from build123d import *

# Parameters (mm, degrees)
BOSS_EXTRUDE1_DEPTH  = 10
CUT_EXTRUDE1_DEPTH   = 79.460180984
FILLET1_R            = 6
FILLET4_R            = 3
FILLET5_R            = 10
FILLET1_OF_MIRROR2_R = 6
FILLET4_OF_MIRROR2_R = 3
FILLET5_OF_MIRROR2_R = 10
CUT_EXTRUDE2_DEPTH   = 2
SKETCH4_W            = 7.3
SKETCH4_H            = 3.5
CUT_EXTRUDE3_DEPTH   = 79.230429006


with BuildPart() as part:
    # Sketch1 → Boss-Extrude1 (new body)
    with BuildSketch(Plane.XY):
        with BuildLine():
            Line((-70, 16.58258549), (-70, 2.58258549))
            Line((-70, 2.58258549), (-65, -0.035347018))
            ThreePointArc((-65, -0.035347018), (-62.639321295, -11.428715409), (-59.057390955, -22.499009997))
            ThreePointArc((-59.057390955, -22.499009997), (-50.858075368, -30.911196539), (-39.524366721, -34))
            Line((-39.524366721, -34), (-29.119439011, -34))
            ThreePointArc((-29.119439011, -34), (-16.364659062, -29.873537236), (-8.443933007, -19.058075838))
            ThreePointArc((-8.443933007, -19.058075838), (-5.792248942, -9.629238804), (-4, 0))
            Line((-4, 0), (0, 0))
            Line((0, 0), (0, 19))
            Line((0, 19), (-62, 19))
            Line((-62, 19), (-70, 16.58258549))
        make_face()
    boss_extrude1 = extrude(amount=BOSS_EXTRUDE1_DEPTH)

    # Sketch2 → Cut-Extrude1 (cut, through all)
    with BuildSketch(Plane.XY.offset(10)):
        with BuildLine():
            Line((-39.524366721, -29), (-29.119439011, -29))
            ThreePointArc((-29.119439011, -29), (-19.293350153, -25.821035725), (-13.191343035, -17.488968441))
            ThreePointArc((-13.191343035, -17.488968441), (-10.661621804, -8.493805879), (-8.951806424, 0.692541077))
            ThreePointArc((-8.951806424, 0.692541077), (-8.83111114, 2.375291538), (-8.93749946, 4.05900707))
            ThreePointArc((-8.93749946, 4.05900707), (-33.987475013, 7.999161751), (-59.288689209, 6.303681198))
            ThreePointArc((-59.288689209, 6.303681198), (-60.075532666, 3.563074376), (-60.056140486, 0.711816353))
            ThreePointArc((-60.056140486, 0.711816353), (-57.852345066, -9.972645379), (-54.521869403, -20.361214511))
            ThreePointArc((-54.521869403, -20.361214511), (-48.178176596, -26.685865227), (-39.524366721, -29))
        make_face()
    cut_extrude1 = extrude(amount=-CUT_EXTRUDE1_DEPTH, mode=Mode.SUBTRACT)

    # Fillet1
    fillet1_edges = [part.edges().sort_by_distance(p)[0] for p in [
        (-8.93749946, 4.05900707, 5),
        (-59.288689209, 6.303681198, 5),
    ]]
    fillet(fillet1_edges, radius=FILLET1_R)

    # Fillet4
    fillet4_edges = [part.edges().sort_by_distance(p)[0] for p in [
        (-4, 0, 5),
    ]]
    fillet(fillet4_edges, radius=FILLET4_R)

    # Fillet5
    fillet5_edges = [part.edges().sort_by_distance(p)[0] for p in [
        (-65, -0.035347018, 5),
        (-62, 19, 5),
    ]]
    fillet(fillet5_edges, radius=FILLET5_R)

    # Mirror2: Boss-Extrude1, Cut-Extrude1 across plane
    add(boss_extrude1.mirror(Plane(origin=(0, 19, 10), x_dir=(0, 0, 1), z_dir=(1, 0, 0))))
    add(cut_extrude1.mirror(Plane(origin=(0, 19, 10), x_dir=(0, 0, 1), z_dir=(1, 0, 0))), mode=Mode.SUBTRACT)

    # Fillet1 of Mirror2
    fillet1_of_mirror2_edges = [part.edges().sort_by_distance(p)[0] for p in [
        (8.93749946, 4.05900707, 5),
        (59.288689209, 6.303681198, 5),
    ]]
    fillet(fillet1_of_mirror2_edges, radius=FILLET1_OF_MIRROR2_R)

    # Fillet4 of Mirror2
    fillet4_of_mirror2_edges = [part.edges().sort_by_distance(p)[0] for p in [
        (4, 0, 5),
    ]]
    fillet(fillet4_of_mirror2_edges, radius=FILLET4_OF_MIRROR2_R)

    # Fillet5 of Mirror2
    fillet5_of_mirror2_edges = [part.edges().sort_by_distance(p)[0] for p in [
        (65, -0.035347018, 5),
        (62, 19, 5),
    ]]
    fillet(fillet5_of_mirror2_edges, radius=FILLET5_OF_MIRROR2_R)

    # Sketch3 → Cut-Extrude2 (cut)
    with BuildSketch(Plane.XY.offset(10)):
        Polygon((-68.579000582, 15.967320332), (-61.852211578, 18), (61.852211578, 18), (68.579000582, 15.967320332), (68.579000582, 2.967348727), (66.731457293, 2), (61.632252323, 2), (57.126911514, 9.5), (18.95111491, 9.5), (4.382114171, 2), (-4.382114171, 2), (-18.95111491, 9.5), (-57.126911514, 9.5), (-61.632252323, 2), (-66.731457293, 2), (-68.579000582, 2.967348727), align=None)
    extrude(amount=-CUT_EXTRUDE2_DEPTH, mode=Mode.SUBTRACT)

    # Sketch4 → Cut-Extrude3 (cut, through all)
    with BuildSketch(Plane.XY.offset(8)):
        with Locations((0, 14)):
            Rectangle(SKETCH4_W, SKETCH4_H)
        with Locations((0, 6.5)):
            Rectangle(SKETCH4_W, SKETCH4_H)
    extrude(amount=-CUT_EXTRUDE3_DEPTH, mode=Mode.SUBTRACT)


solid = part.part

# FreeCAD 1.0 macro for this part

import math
import FreeCAD as App
import Part
import Sketcher
Q = App.Units.Quantity


def edges_at(feature, points):
    """Names of the edges that pass closest to the given points."""
    edges = feature.Shape.Edges
    near = lambda p: min(range(len(edges)), key=lambda i: edges[i].distToShape(Part.Vertex(*p))[0])
    return sorted({f"Edge{near(p) + 1}" for p in points})


def add_polygon(sketch, points):
    """Adds a closed chain of lines whose ends are joined by coincident constraints."""
    first, n = sketch.GeometryCount, len(points)
    for a, b in zip(points, points[1:] + points[:1]):
        sketch.addGeometry(Part.LineSegment(App.Vector(*a, 0), App.Vector(*b, 0)), False)
    for i in range(n):
        sketch.addConstraint(Sketcher.Constraint("Coincident", first + i, 2, first + (i + 1) % n, 1))

doc = App.newDocument("Part")
body = doc.addObject("PartDesign::Body", "Body")

# Sketch on XY plane
sketch1 = body.newObject("Sketcher::SketchObject", "Sketch")
sketch1.AttachmentSupport = (doc.getObject("XY_Plane"), [""])
sketch1.MapMode = "FlatFace"
sketch1.addGeometry([
    Part.LineSegment(App.Vector(-70, 16.6, 0), App.Vector(-70, 2.6, 0)),  # 0
    Part.LineSegment(App.Vector(-70, 2.6, 0), App.Vector(-65, 0, 0)),  # 1
    Part.ArcOfCircle(Part.Circle(App.Vector(41, 16, 0), App.Vector(0, 0, 1), 107.2), math.radians(-171.41), math.radians(-158.96)),  # 2
    Part.ArcOfCircle(Part.Circle(App.Vector(-39.5, -11.7, 0), App.Vector(0, 0, 1), 22.3), math.radians(-151), math.radians(-90)),  # 3
    Part.LineSegment(App.Vector(-39.5, -34, 0), App.Vector(-29.1, -34, 0)),  # 4
    Part.ArcOfCircle(Part.Circle(App.Vector(-29.1, -12.2, 0), App.Vector(0, 0, 1), 21.8), math.radians(-90), math.radians(-18)),  # 5
    Part.ArcOfCircle(Part.Circle(App.Vector(-111.7, 15.1, 0), App.Vector(0, 0, 1), 108.7), math.radians(-18.29), math.radians(-7.96)),  # 6
    Part.LineSegment(App.Vector(-4, 0, 0), App.Vector(0, 0, 0)),  # 7
    Part.LineSegment(App.Vector(0, 0, 0), App.Vector(0, 19, 0)),  # 8
    Part.LineSegment(App.Vector(0, 19, 0), App.Vector(-62, 19, 0)),  # 9
    Part.LineSegment(App.Vector(-62, 19, 0), App.Vector(-70, 16.6, 0)),  # 10
], False)
sketch1.addConstraint([
    Sketcher.Constraint("Coincident", 0, 2, 1, 1),
    Sketcher.Constraint("Coincident", 1, 2, 2, 1),
    Sketcher.Constraint("Coincident", 2, 2, 3, 1),
    Sketcher.Constraint("Tangent", 3, 2, 4, 1),
    Sketcher.Constraint("Tangent", 4, 2, 5, 1),
    Sketcher.Constraint("Tangent", 5, 2, 6, 1),
    Sketcher.Constraint("Coincident", 6, 2, 7, 1),
    Sketcher.Constraint("Coincident", 7, 2, 8, 1),
    Sketcher.Constraint("Coincident", 8, 2, 9, 1),
    Sketcher.Constraint("Coincident", 9, 2, 10, 1),
    Sketcher.Constraint("Coincident", 10, 2, 0, 1),
    Sketcher.Constraint("Vertical", 0),
    Sketcher.Constraint("Horizontal", 4),
    Sketcher.Constraint("Horizontal", 7),
    Sketcher.Constraint("Vertical", 8),
    Sketcher.Constraint("Horizontal", 9),
    Sketcher.Constraint("Coincident", 7, 2, -1, 1),
    Sketcher.Constraint("DistanceX", 7, 1, 7, 2, Q("4 mm")),
    Sketcher.Constraint("DistanceX", 9, 2, 9, 1, Q("62 mm")),
    Sketcher.Constraint("DistanceY", 0, 2, 0, 1, Q("14 mm")),
    Sketcher.Constraint("DistanceY", 8, 1, 8, 2, Q("19 mm")),
    Sketcher.Constraint("DistanceX", 0, 2, -1, 1, Q("70 mm")),
    Sketcher.Constraint("DistanceX", 1, 2, -1, 1, Q("65 mm")),
    Sketcher.Constraint("DistanceY", 3, 2, -1, 1, Q("34 mm")),
    Sketcher.Constraint("Radius", 2, Q("107.168259 mm")),
    Sketcher.Constraint("Radius", 3, Q("22.337721 mm")),
    Sketcher.Constraint("Radius", 5, Q("21.775564 mm")),
    Sketcher.Constraint("Radius", 6, Q("108.708693 mm")),
    Sketcher.Constraint("DistanceX", 4, 1, 4, 2, Q("10.404928 mm")),
    Sketcher.Constraint("DistanceX", 5, 3, -1, 1, Q("29.119439 mm")),
    Sketcher.Constraint("DistanceX", 2, 2, -1, 1, Q("59.057391 mm")),
    Sketcher.Constraint("DistanceX", 3, 3, 2, 3, Q("80.48933 mm")),
    Sketcher.Constraint("DistanceY", 5, 3, 0, 2, Q("14.807022 mm")),
])
pad1 = body.newObject("PartDesign::Pad", "Pad")
pad1.Profile = sketch1
pad1.Length = 10

# Sketch on XY plane
sketch2 = body.newObject("Sketcher::SketchObject", "Sketch001")
sketch2.AttachmentSupport = (doc.getObject("XY_Plane"), [""])
sketch2.MapMode = "FlatFace"
sketch2.AttachmentOffset = App.Placement(App.Vector(0, 0, 10), App.Rotation())
sketch2.addGeometry([
    Part.LineSegment(App.Vector(-39.524367, -29, 0), App.Vector(-29.119439, -29, 0)),  # 0
    Part.ArcOfCircle(Part.Circle(App.Vector(-29.119439, -12.224436, 0), App.Vector(0, 0, 1), 16.775564), math.radians(-90), math.radians(-18.289682)),  # 1
    Part.ArcOfCircle(Part.Circle(App.Vector(-111.660881, 15.057047, 0), App.Vector(0, 0, 1), 103.708693), math.radians(-18.289682), math.radians(-7.961532)),  # 2
    Part.ArcOfCircle(Part.Circle(App.Vector(-21.364667, 2.428557, 0), App.Vector(0, 0, 1), 12.533669), math.radians(-7.961532), math.radians(7.474539)),  # 3
    Part.ArcOfCircle(Part.Circle(App.Vector(-39.064006, -105.874545, 0), App.Vector(0, 0, 1), 113.986807), math.radians(74.674745), math.radians(100.220102)),  # 4
    Part.ArcOfCircle(Part.Circle(App.Vector(-50.178002, 2.204695, 0), App.Vector(0, 0, 1), 9.990311), math.radians(155.776561), math.radians(188.594051)),  # 5
    Part.ArcOfCircle(Part.Circle(App.Vector(40.964964, 15.979093, 0), App.Vector(0, 0, 1), 102.168259), math.radians(-171.405949), math.radians(-159.164214)),  # 6
    Part.ArcOfCircle(Part.Circle(App.Vector(-39.524367, -11.662279, 0), App.Vector(0, 0, 1), 17.337721), math.radians(-149.88517), math.radians(-90)),  # 7
], False)
sketch2.addConstraint([
    Sketcher.Constraint("Coincident", 0, 2, 1, 1),
    Sketcher.Constraint("Coincident", 1, 2, 2, 1),
    Sketcher.Constraint("Coincident", 2, 2, 3, 1),
    Sketcher.Constraint("Coincident", 3, 2, 4, 1),
    Sketcher.Constraint("Coincident", 4, 2, 5, 1),
    Sketcher.Constraint("Coincident", 5, 2, 6, 1),
    Sketcher.Constraint("Coincident", 6, 2, 7, 1),
    Sketcher.Constraint("Coincident", 7, 2, 0, 1),
    Sketcher.Constraint("Horizontal", 0),
    Sketcher.Constraint("DistanceY", 0, 2, -1, 1, Q("29 mm")),
    Sketcher.Constraint("Radius", 3, Q("12.533669 mm")),
    Sketcher.Constraint("Radius", 5, Q("9.990311 mm")),
    Sketcher.Constraint("Radius", 6, Q("102.168259 mm")),
    Sketcher.Constraint("Radius", 7, Q("17.337721 mm")),
    Sketcher.Constraint("DistanceX", 5, 3, -1, 1, Q("50.178002 mm")),
    Sketcher.Constraint("Radius", 1, Q("16.775564 mm")),
    Sketcher.Constraint("Radius", 2, Q("103.708693 mm")),
    Sketcher.Constraint("Radius", 4, Q("113.986807 mm")),
    Sketcher.Constraint("DistanceX", 3, 2, -1, 1, Q("8.937499 mm")),
    Sketcher.Constraint("DistanceX", 7, 3, 3, 3, Q("18.1597 mm")),
    Sketcher.Constraint("DistanceX", 5, 2, 1, 3, Q("30.936701 mm")),
    Sketcher.Constraint("DistanceX", 0, 1, 0, 2, Q("10.404928 mm")),
    Sketcher.Constraint("DistanceX", 1, 3, -1, 1, Q("29.119439 mm")),
    Sketcher.Constraint("DistanceX", 2, 3, -1, 1, Q("111.660881 mm")),
    Sketcher.Constraint("DistanceX", 0, 2, -1, 1, Q("29.119439 mm")),
    Sketcher.Constraint("DistanceY", 1, 2, -1, 1, Q("17.488968 mm")),
    Sketcher.Constraint("DistanceY", -1, 1, 2, 2, Q("0.692541 mm")),
    Sketcher.Constraint("DistanceX", 4, 2, -1, 1, Q("59.288689 mm")),
    Sketcher.Constraint("DistanceY", -1, 1, 4, 2, Q("6.303681 mm")),
    Sketcher.Constraint("DistanceX", 6, 2, -1, 1, Q("54.521869 mm")),
    Sketcher.Constraint("DistanceX", 1, 3, 3, 3, Q("7.754772 mm")),
])
pocket1 = body.newObject("PartDesign::Pocket", "Pocket")
pocket1.Profile = sketch2
pocket1.Type = "ThroughAll"
doc.recompute()

fillet = body.newObject("PartDesign::Fillet", "Fillet")
fillet.Base = (pocket1, edges_at(pocket1, [(-8.937, 4.059, 5), (-59.289, 6.304, 5)]))
fillet.Radius = 6
doc.recompute()

fillet2 = body.newObject("PartDesign::Fillet", "Fillet001")
fillet2.Base = (fillet, edges_at(fillet, [(-4, 0, 5)]))
fillet2.Radius = 3
doc.recompute()

fillet3 = body.newObject("PartDesign::Fillet", "Fillet002")
fillet3.Base = (fillet2, edges_at(fillet2, [(-65, -0.035, 5), (-62, 19, 5)]))
fillet3.Radius = 10
doc.recompute()

mirrored = body.newObject("PartDesign::Mirrored", "Mirrored")
mirrored.Originals = [pad1, pocket1]
mirrored.MirrorPlane = (doc.getObject("YZ_Plane"), [""])
body.Tip = mirrored
doc.recompute()

fillet4 = body.newObject("PartDesign::Fillet", "Fillet003")
fillet4.Base = (mirrored, edges_at(mirrored, [(8.937, 4.059, 5), (59.289, 6.304, 5)]))
fillet4.Radius = 6
doc.recompute()

fillet5 = body.newObject("PartDesign::Fillet", "Fillet004")
fillet5.Base = (fillet4, edges_at(fillet4, [(4, 0, 5)]))
fillet5.Radius = 3
doc.recompute()

fillet6 = body.newObject("PartDesign::Fillet", "Fillet005")
fillet6.Base = (fillet5, edges_at(fillet5, [(65, -0.035, 5), (62, 19, 5)]))
fillet6.Radius = 10

# Sketch on XY plane
sketch3 = body.newObject("Sketcher::SketchObject", "Sketch002")
sketch3.AttachmentSupport = (doc.getObject("XY_Plane"), [""])
sketch3.MapMode = "FlatFace"
sketch3.AttachmentOffset = App.Placement(App.Vector(0, 0, 10), App.Rotation())
add_polygon(sketch3, [(-61.9, 18), (-68.6, 16), (-68.6, 3), (-66.7, 2), (-61.6, 2), (-57.1, 9.5), (-19, 9.5), (-4.4, 2), (4.4, 2), (19, 9.5), (57.1, 9.5), (61.6, 2), (66.7, 2), (68.6, 3), (68.6, 16), (61.9, 18)])  # lines 0-15
sketch3.addConstraint([
    Sketcher.Constraint("Vertical", 1),
    Sketcher.Constraint("Horizontal", 3),
    Sketcher.Constraint("Horizontal", 5),
    Sketcher.Constraint("Horizontal", 7),
    Sketcher.Constraint("Horizontal", 9),
    Sketcher.Constraint("Horizontal", 11),
    Sketcher.Constraint("Vertical", 13),
    Sketcher.Constraint("Horizontal", 15),
    Sketcher.Constraint("Symmetric", 5, 2, 8, 2, -2),
    Sketcher.Constraint("Symmetric", 3, 2, 10, 2, -2),
    Sketcher.Constraint("Symmetric", 1, 2, 12, 2, -2),
    Sketcher.Constraint("Horizontal", 3, 2, 6, 2),
    Sketcher.Constraint("Horizontal", 0, 2, 13, 2),
    Sketcher.Constraint("Equal", 5, 9),
    Sketcher.Constraint("Equal", 3, 11),
    Sketcher.Constraint("Equal", 6, 8),
    Sketcher.Constraint("Equal", 0, 14),
    Sketcher.Constraint("DistanceY", -1, 1, 2, 2, Q("2 mm")),
    Sketcher.Constraint("DistanceY", -1, 1, 14, 2, Q("18 mm")),
    Sketcher.Constraint("DistanceY", -1, 1, 4, 2, Q("9.5 mm")),
    Sketcher.Constraint("DistanceX", 0, 2, -1, 1, Q("68.579001 mm")),
    Sketcher.Constraint("DistanceX", 5, 2, 6, 2, Q("14.569001 mm")),
    Sketcher.Constraint("DistanceX", 7, 1, 7, 2, Q("8.764228 mm")),
    Sketcher.Constraint("DistanceY", 1, 2, 1, 1, Q("12.999972 mm")),
    Sketcher.Constraint("DistanceX", 9, 2, 14, 2, Q("4.7253 mm")),
    Sketcher.Constraint("Distance", 2, Q("2.085469 mm")),
    Sketcher.Constraint("DistanceX", 3, 1, 3, 2, Q("5.099205 mm")),
    Sketcher.Constraint("DistanceX", 5, 1, 5, 2, Q("38.175797 mm")),
    Sketcher.Constraint("DistanceY", -1, 1, 0, 2, Q("15.96732 mm")),
])
pocket2 = body.newObject("PartDesign::Pocket", "Pocket001")
pocket2.Profile = sketch3
pocket2.Length = 2

# Sketch on XY plane
sketch4 = body.newObject("Sketcher::SketchObject", "Sketch003")
sketch4.AttachmentSupport = (doc.getObject("XY_Plane"), [""])
sketch4.MapMode = "FlatFace"
sketch4.AttachmentOffset = App.Placement(App.Vector(0, 0, 8), App.Rotation())
add_polygon(sketch4, [(-3.6, 15.8), (-3.6, 12.2), (3.6, 12.2), (3.6, 15.8)])  # lines 0-3
add_polygon(sketch4, [(-3.6, 8.2), (-3.6, 4.8), (3.6, 4.8), (3.6, 8.2)])  # lines 4-7
sketch4.addConstraint([
    Sketcher.Constraint("Vertical", 0),
    Sketcher.Constraint("Horizontal", 1),
    Sketcher.Constraint("Vertical", 2),
    Sketcher.Constraint("Horizontal", 3),
    Sketcher.Constraint("Vertical", 4),
    Sketcher.Constraint("Horizontal", 5),
    Sketcher.Constraint("Vertical", 6),
    Sketcher.Constraint("Horizontal", 7),
    Sketcher.Constraint("Vertical", 3, 2, 4, 2),
    Sketcher.Constraint("Vertical", 2, 2, 5, 2),
    Sketcher.Constraint("Equal", 2, 4),
    Sketcher.Constraint("DistanceX", 1, 1, 1, 2, Q("7.3 mm")),
    Sketcher.Constraint("DistanceY", 0, 2, 0, 1, Q("3.5 mm")),
    Sketcher.Constraint("DistanceY", 4, 2, 3, 2, Q("11 mm")),
    Sketcher.Constraint("DistanceX", 0, 2, -1, 1, Q("3.65 mm")),
    Sketcher.Constraint("DistanceY", -1, 1, 0, 2, Q("12.25 mm")),
])
pocket3 = body.newObject("PartDesign::Pocket", "Pocket002")
pocket3.Profile = sketch4
pocket3.Type = "ThroughAll"

doc.recompute()
